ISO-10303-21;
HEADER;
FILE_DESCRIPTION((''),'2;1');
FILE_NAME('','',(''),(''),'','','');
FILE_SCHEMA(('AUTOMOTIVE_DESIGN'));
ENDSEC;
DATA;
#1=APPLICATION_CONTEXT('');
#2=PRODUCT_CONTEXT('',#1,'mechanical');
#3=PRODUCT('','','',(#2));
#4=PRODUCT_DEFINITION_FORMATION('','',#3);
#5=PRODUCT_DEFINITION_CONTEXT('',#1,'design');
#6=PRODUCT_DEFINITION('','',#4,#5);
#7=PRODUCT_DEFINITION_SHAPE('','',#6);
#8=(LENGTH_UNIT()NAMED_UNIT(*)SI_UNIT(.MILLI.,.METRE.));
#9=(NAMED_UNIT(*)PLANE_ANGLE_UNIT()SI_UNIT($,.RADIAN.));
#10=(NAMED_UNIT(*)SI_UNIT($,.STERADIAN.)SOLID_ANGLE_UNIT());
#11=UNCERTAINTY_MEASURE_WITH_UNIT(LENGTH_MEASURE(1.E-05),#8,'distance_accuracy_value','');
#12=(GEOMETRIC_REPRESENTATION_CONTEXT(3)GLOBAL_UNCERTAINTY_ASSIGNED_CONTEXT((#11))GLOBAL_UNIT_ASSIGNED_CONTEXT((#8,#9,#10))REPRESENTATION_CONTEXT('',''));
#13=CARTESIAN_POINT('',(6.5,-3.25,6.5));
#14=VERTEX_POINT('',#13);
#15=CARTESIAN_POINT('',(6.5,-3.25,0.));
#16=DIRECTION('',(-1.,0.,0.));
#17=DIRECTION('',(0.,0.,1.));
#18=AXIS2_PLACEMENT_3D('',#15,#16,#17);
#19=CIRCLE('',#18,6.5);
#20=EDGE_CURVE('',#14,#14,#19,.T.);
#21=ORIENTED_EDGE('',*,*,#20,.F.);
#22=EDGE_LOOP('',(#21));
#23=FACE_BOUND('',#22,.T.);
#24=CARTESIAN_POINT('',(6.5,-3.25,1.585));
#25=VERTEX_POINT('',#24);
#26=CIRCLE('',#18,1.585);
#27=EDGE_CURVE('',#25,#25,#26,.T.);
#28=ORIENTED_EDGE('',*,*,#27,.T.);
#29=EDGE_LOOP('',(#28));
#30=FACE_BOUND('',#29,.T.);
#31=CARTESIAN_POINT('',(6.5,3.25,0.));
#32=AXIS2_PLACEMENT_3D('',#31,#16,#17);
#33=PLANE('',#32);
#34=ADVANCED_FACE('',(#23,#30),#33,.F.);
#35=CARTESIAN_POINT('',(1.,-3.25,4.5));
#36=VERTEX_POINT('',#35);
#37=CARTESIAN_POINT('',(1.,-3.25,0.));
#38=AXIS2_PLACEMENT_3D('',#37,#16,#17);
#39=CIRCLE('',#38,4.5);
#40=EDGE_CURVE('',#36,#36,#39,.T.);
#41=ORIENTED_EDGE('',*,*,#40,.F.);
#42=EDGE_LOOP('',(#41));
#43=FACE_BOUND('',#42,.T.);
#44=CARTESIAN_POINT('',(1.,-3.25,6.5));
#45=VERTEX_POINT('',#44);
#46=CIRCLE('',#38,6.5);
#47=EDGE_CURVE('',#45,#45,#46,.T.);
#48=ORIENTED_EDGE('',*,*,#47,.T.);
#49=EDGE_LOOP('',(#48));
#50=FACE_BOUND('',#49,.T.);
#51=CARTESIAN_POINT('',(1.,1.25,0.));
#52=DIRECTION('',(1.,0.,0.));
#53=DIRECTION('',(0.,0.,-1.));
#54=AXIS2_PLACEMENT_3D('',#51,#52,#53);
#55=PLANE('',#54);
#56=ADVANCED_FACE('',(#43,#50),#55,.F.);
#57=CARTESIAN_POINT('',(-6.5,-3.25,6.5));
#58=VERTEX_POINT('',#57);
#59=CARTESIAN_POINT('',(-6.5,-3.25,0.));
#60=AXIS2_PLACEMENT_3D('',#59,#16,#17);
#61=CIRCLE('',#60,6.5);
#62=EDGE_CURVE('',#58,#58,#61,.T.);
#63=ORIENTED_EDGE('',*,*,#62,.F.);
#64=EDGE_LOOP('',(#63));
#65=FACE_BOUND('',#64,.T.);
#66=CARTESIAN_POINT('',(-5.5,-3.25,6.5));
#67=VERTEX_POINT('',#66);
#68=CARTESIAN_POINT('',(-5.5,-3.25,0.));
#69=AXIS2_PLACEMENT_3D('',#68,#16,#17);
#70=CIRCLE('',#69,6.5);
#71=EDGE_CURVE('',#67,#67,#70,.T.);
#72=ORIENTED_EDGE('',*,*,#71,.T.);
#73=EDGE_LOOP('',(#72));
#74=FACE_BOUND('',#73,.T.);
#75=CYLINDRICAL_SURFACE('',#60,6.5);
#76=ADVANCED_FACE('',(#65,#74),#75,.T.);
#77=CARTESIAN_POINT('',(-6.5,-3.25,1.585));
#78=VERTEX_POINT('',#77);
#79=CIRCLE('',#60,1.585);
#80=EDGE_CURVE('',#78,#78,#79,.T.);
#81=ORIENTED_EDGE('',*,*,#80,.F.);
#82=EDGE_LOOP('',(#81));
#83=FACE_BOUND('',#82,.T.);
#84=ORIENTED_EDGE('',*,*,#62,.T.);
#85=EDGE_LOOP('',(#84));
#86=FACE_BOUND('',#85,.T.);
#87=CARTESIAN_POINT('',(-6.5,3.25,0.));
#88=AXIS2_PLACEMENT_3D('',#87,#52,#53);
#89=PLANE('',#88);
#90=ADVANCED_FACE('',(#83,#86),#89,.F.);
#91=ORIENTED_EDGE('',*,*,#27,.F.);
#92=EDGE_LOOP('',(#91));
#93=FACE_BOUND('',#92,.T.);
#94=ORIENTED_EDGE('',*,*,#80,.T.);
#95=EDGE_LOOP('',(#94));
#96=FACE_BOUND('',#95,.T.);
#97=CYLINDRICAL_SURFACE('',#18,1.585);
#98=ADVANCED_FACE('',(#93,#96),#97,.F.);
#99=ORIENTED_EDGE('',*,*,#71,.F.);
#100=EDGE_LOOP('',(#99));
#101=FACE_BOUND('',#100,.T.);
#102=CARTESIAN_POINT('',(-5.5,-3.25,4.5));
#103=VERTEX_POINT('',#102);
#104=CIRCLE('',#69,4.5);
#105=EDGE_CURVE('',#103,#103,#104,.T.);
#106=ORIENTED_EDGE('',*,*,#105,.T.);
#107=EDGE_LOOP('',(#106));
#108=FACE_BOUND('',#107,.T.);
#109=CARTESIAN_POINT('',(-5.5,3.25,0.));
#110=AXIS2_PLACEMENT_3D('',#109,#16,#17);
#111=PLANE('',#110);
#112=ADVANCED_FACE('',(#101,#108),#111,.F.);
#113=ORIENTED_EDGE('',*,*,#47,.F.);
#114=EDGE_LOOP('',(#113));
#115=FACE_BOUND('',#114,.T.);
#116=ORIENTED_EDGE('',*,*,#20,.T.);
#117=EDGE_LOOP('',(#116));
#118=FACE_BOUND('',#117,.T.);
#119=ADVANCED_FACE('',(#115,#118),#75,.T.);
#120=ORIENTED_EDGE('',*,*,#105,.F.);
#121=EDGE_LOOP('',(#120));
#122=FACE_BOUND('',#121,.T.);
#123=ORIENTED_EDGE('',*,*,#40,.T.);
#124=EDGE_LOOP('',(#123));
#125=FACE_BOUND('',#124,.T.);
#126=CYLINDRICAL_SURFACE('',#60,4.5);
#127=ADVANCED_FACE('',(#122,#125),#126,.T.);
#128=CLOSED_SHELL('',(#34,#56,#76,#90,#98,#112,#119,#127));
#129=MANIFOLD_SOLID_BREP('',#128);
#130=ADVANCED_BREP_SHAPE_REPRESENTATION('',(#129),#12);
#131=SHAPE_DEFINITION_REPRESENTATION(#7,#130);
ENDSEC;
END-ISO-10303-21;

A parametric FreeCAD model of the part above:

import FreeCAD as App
import Part
import Sketcher

doc = App.newDocument("Part")
body = doc.addObject("PartDesign::Body", "Body")

sketch1 = doc.addObject("Sketcher::SketchObject", "Sketch")
body.addObject(sketch1)
sketch1.AttachmentSupport = (doc.XY_Plane, [""])
sketch1.MapMode = "FlatFace"
sketch1.addGeometry([
    Part.LineSegment(App.Vector(-6.5, -3.2, 0), App.Vector(6.5, -3.2, 0)),
    Part.LineSegment(App.Vector(6.5, -3.2, 0), App.Vector(6.5, 3.2, 0)),
    Part.LineSegment(App.Vector(6.5, 3.2, 0), App.Vector(1, 3.2, 0)),
    Part.LineSegment(App.Vector(1, 3.2, 0), App.Vector(1, 1.2, 0)),
    Part.LineSegment(App.Vector(1, 1.2, 0), App.Vector(-5.5, 1.2, 0)),
    Part.LineSegment(App.Vector(-5.5, 1.2, 0), App.Vector(-5.5, 3.2, 0)),
    Part.LineSegment(App.Vector(-5.5, 3.2, 0), App.Vector(-6.5, 3.2, 0)),
    Part.LineSegment(App.Vector(-6.5, 3.2, 0), App.Vector(-6.5, -3.2, 0)),
], False)
sketch1.addGeometry(Part.LineSegment(App.Vector(-6.5, -3.2, 0), App.Vector(6.5, -3.2, 0)), True)
sketch1.addConstraint([
    Sketcher.Constraint("Coincident", 0, 2, 1, 1),
    Sketcher.Constraint("Coincident", 1, 2, 2, 1),
    Sketcher.Constraint("Coincident", 2, 2, 3, 1),
    Sketcher.Constraint("Coincident", 3, 2, 4, 1),
    Sketcher.Constraint("Coincident", 4, 2, 5, 1),
    Sketcher.Constraint("Coincident", 5, 2, 6, 1),
    Sketcher.Constraint("Coincident", 6, 2, 7, 1),
    Sketcher.Constraint("Coincident", 7, 2, 0, 1),
    Sketcher.Constraint("Horizontal", 0),
    Sketcher.Constraint("Vertical", 1),
    Sketcher.Constraint("Horizontal", 2),
    Sketcher.Constraint("Vertical", 3),
    Sketcher.Constraint("Horizontal", 4),
    Sketcher.Constraint("Vertical", 5),
    Sketcher.Constraint("Horizontal", 6),
    Sketcher.Constraint("Vertical", 7),
    Sketcher.Constraint("Horizontal", 8),
    Sketcher.Constraint("Coincident", 8, 1, 7, 2),
    Sketcher.Constraint("Symmetric", 0, 2, 6, 2, -1, 1),
    Sketcher.Constraint("Symmetric", 1, 2, 8, 2, -1),
    Sketcher.Constraint("Equal", 4, 1),
    Sketcher.Constraint("DistanceX", 0, 1, 0, 2, 13.0),
    Sketcher.Constraint("DistanceX", 6, 2, 6, 1, 1.0),
    Sketcher.Constraint("DistanceY", 3, 2, 3, 1, 2.0),
    Sketcher.Constraint("DistanceX", 2, 2, 2, 1, 5.5),
])
revolution = doc.addObject("PartDesign::Revolution", "Revolution")
body.addObject(revolution)
revolution.Profile = sketch1
revolution.ReferenceAxis = (sketch1, ["Axis0"])
revolution.Angle = 360

sketch2 = doc.addObject("Sketcher::SketchObject", "Sketch001")
body.addObject(sketch2)
sketch2.AttachmentSupport = (doc.YZ_Plane, [""])
sketch2.MapMode = "FlatFace"
sketch2.AttachmentOffset = App.Placement(App.Vector(0, 0, -6.5), App.Rotation())
sketch2.addGeometry(Part.Circle(App.Vector(-3.2, 0, 0), App.Vector(0, 0, 1), 1.6), False)
sketch2.addConstraint([
    Sketcher.Constraint("PointOnObject", 0, 3, -1),
    Sketcher.Constraint("Diameter", 0, 3.17),
    Sketcher.Constraint("DistanceX", 0, 3, -1, 1, 3.25),
])
pocket1 = doc.addObject("PartDesign::Pocket", "Pocket")
body.addObject(pocket1)
pocket1.Profile = sketch2
pocket1.Type = "ThroughAll"
pocket1.Reversed = True

doc.recompute()
